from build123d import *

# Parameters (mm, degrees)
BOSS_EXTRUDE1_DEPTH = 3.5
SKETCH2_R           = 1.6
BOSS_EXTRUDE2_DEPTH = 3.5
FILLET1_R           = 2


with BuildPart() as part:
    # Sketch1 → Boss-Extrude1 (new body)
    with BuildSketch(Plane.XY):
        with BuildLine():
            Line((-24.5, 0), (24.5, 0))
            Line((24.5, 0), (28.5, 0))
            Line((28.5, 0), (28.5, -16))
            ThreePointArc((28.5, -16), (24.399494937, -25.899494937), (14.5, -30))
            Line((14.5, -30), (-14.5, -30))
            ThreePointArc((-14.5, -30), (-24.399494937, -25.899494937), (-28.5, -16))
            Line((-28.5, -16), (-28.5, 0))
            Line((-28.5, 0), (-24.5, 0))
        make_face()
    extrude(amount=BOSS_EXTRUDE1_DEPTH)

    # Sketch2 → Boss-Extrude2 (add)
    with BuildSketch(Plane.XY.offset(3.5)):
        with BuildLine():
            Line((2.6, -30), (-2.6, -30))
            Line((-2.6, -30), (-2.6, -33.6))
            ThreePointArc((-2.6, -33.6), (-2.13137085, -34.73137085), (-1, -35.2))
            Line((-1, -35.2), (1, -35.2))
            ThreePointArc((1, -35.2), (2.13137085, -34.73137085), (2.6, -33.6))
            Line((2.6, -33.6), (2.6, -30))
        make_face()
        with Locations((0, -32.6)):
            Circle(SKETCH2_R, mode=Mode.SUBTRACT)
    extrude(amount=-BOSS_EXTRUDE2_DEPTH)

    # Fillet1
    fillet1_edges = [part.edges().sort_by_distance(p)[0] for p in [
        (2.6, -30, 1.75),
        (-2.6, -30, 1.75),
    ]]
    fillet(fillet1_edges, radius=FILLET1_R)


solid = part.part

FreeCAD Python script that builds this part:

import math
import FreeCAD as App
import Part
import Sketcher
Q = App.Units.Quantity


def edges_at(feature, points):
    """Names of the edges that pass closest to the given points."""
    edges = feature.Shape.Edges
    near = lambda p: min(range(len(edges)), key=lambda i: edges[i].distToShape(Part.Vertex(*p))[0])
    return sorted({f"Edge{near(p) + 1}" for p in points})

doc = App.newDocument("Part")
body = doc.addObject("PartDesign::Body", "Body")

# Sketch on XY plane
sketch1 = body.newObject("Sketcher::SketchObject", "Sketch")
sketch1.AttachmentSupport = (doc.getObject("XY_Plane"), [""])
sketch1.MapMode = "FlatFace"
sketch1.addGeometry(Part.LineSegment(App.Vector(28, -16, 0), App.Vector(28, 0, 0)), False)
sketch1.addGeometry(Part.LineSegment(App.Vector(28, 0, 0), App.Vector(-28, 0, 0)), False)
sketch1.addGeometry(Part.LineSegment(App.Vector(-28, 0, 0), App.Vector(-28, -16, 0)), False)
sketch1.addGeometry(Part.ArcOfCircle(Part.Circle(App.Vector(-15, -16, 0), App.Vector(0, 0, 1), 14), math.radians(180), math.radians(270)), False)
sketch1.addGeometry(Part.LineSegment(App.Vector(-14, -30, 0), App.Vector(14, -30, 0)), False)
sketch1.addGeometry(Part.ArcOfCircle(Part.Circle(App.Vector(15, -16, 0), App.Vector(0, 0, 1), 14), math.radians(-90), math.radians(0)), False)
sketch1.addConstraint(Sketcher.Constraint("Coincident", 0, 2, 1, 1))
sketch1.addConstraint(Sketcher.Constraint("Coincident", 1, 2, 2, 1))
sketch1.addConstraint(Sketcher.Constraint("Tangent", 2, 2, 3, 1))
sketch1.addConstraint(Sketcher.Constraint("Tangent", 3, 2, 4, 1))
sketch1.addConstraint(Sketcher.Constraint("Tangent", 4, 2, 5, 1))
sketch1.addConstraint(Sketcher.Constraint("Tangent", 5, 2, 0, 1))
sketch1.addConstraint(Sketcher.Constraint("Vertical", 0))
sketch1.addConstraint(Sketcher.Constraint("Horizontal", 1))
sketch1.addConstraint(Sketcher.Constraint("Vertical", 2))
sketch1.addConstraint(Sketcher.Constraint("Horizontal", 4))
sketch1.addConstraint(Sketcher.Constraint("Equal", 3, 5))
sketch1.addConstraint(Sketcher.Constraint("Symmetric", 0, 2, 1, 2, -1, 1))
sketch1.addConstraint(Sketcher.Constraint("Radius", 3, Q("14 mm")))
sketch1.addConstraint(Sketcher.Constraint("DistanceX", 1, 2, 1, 1, Q("57 mm")))
sketch1.addConstraint(Sketcher.Constraint("DistanceY", 0, 1, 0, 2, Q("16 mm")))
pad1 = body.newObject("PartDesign::Pad", "Pad")
pad1.Profile = sketch1
pad1.Length = 3.5

# Sketch on XY plane
sketch2 = body.newObject("Sketcher::SketchObject", "Sketch001")
sketch2.AttachmentSupport = (doc.getObject("XY_Plane"), [""])
sketch2.MapMode = "FlatFace"
sketch2.AttachmentOffset = App.Placement(App.Vector(0, 0, 3.5), App.Rotation())
sketch2.addGeometry(Part.LineSegment(App.Vector(2.6, -30, 0), App.Vector(-2.6, -30, 0)), False)
sketch2.addGeometry(Part.LineSegment(App.Vector(-2.6, -30, 0), App.Vector(-2.6, -33.6, 0)), False)
sketch2.addGeometry(Part.ArcOfCircle(Part.Circle(App.Vector(-1, -33.6, 0), App.Vector(0, 0, 1), 1.6), math.radians(180), math.radians(270)), False)
sketch2.addGeometry(Part.LineSegment(App.Vector(-1, -35.2, 0), App.Vector(1, -35.2, 0)), False)
sketch2.addGeometry(Part.ArcOfCircle(Part.Circle(App.Vector(1, -33.6, 0), App.Vector(0, 0, 1), 1.6), math.radians(-90), math.radians(0)), False)
sketch2.addGeometry(Part.LineSegment(App.Vector(2.6, -33.6, 0), App.Vector(2.6, -30, 0)), False)
sketch2.addGeometry(Part.Circle(App.Vector(0, -32.6, 0), App.Vector(0, 0, 1), 1.6), False)
sketch2.addConstraint(Sketcher.Constraint("Coincident", 0, 2, 1, 1))
sketch2.addConstraint(Sketcher.Constraint("Tangent", 1, 2, 2, 1))
sketch2.addConstraint(Sketcher.Constraint("Tangent", 2, 2, 3, 1))
sketch2.addConstraint(Sketcher.Constraint("Tangent", 3, 2, 4, 1))
sketch2.addConstraint(Sketcher.Constraint("Tangent", 4, 2, 5, 1))
sketch2.addConstraint(Sketcher.Constraint("Coincident", 5, 2, 0, 1))
sketch2.addConstraint(Sketcher.Constraint("Horizontal", 0))
sketch2.addConstraint(Sketcher.Constraint("Vertical", 1))
sketch2.addConstraint(Sketcher.Constraint("Horizontal", 3))
sketch2.addConstraint(Sketcher.Constraint("Vertical", 5))
sketch2.addConstraint(Sketcher.Constraint("Equal", 2, 4))
sketch2.addConstraint(Sketcher.Constraint("Equal", 4, 6))
sketch2.addConstraint(Sketcher.Constraint("PointOnObject", 6, 3, -2))
sketch2.addConstraint(Sketcher.Constraint("Diameter", 6, Q("3.2 mm")))
sketch2.addConstraint(Sketcher.Constraint("DistanceX", 3, 1, 3, 2, Q("2 mm")))
sketch2.addConstraint(Sketcher.Constraint("DistanceY", 1, 2, 1, 1, Q("3.6 mm")))
sketch2.addConstraint(Sketcher.Constraint("DistanceX", 2, 3, -1, 1, Q("1 mm")))
sketch2.addConstraint(Sketcher.Constraint("DistanceY", 0, 2, -1, 1, Q("30 mm")))
sketch2.addConstraint(Sketcher.Constraint("DistanceY", 2, 3, 6, 3, Q("1 mm")))
pad2 = body.newObject("PartDesign::Pad", "Pad001")
pad2.Profile = sketch2
pad2.Length = 3.5
pad2.Reversed = True
doc.recompute()

fillet = body.newObject("PartDesign::Fillet", "Fillet")
fillet.Base = (pad2, edges_at(pad2, [(2.6, -30, 1.75), (-2.6, -30, 1.75)]))
fillet.Radius = 2

doc.recompute()
